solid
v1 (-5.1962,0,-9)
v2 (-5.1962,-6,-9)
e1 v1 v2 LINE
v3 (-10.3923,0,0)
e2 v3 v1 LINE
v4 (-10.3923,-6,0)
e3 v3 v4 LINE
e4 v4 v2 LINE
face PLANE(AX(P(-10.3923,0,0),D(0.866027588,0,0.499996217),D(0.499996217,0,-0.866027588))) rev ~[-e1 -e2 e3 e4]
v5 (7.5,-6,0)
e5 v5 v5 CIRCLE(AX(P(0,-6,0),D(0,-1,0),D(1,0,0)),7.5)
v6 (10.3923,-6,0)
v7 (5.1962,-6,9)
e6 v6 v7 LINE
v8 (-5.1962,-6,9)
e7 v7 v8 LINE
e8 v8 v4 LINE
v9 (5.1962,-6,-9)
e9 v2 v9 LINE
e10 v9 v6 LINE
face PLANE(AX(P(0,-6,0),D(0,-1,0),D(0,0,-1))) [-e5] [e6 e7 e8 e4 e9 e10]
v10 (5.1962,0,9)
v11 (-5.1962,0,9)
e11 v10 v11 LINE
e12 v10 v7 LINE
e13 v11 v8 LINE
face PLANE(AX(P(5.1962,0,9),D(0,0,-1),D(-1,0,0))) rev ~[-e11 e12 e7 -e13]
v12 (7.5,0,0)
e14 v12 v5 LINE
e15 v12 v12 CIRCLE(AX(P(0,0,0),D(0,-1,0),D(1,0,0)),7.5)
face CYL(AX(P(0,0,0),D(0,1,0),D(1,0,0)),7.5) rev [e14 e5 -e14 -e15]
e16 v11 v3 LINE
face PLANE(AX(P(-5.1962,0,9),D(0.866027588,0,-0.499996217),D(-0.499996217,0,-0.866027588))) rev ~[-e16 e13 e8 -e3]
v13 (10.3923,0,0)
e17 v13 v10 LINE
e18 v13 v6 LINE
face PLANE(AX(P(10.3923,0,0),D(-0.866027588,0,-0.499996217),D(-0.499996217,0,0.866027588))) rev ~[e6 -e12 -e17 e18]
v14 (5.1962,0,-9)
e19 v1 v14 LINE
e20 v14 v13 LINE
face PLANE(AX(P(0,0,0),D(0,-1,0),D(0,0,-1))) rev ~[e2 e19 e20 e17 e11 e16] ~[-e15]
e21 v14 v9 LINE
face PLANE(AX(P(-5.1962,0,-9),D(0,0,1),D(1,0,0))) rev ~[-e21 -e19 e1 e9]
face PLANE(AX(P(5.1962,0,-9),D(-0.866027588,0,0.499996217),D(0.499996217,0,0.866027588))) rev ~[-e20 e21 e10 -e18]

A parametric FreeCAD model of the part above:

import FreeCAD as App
import Part
import Sketcher
from FreeCAD import Vector
Q = App.Units.Quantity

doc = App.newDocument("Part")
params = doc.addObject("Spreadsheet::Sheet", "Params")
for row, (alias, value) in enumerate([
    ("sketch1_diameter", "15 mm"),
    ("pad1_length", "6 mm"),
], start=1):
    params.set(f"A{row}", alias)
    params.set(f"B{row}", "=" + value)
    params.setAlias(f"B{row}", alias)

body = doc.addObject("PartDesign::Body", "Body")

# Sketch on XZ plane
sketch1 = doc.addObject("Sketcher::SketchObject", "Sketch")
body.addObject(sketch1)
sketch1.AttachmentSupport = (doc.XZ_Plane, [""])
sketch1.MapMode = "FlatFace"
sketch1.addGeometry(Part.LineSegment(Vector(5, 9, 0), Vector(-5, 9, 0)), False)
sketch1.addGeometry(Part.LineSegment(Vector(-5, 9, 0), Vector(-10, 0, 0)), False)
sketch1.addGeometry(Part.LineSegment(Vector(-10, 0, 0), Vector(-5, -9, 0)), False)
sketch1.addGeometry(Part.LineSegment(Vector(-5, -9, 0), Vector(5, -9, 0)), False)
sketch1.addGeometry(Part.LineSegment(Vector(5, -9, 0), Vector(10, 0, 0)), False)
sketch1.addGeometry(Part.LineSegment(Vector(10, 0, 0), Vector(5, 9, 0)), False)
sketch1.addGeometry(Part.Circle(Vector(0, 0, 0), Vector(0, 0, 1), 8), False)
sketch1.addConstraint(Sketcher.Constraint("Coincident", 0, 2, 1, 1))
sketch1.addConstraint(Sketcher.Constraint("Coincident", 1, 2, 2, 1))
sketch1.addConstraint(Sketcher.Constraint("Coincident", 2, 2, 3, 1))
sketch1.addConstraint(Sketcher.Constraint("Coincident", 3, 2, 4, 1))
sketch1.addConstraint(Sketcher.Constraint("Coincident", 4, 2, 5, 1))
sketch1.addConstraint(Sketcher.Constraint("Coincident", 5, 2, 0, 1))
sketch1.addConstraint(Sketcher.Constraint("Horizontal", 0))
sketch1.addConstraint(Sketcher.Constraint("Horizontal", 3))
sketch1.addConstraint(Sketcher.Constraint("Coincident", 6, 3, -1, 1))
sketch1.addConstraint(Sketcher.Constraint("Symmetric", 0, 2, 3, 2, -1, 1))
sketch1.addConstraint(Sketcher.Constraint("Symmetric", 1, 2, 4, 2, -1, 1))
sketch1.addConstraint(Sketcher.Constraint("PointOnObject", 1, 2, -1))
sketch1.addConstraint(Sketcher.Constraint("Parallel", 2, 5))
sketch1.addConstraint(Sketcher.Constraint("Vertical", 0, 2, 2, 2))
sketch1.addConstraint(Sketcher.Constraint("Diameter", 6, Q("15 mm")))
sketch1.addConstraint(Sketcher.Constraint("Angle", 1, Q("-119.9997 deg")))
sketch1.addConstraint(Sketcher.Constraint("DistanceY", -1, 1, 0, 2, Q("9 mm")))
sketch1.addConstraint(Sketcher.Constraint("DistanceX", 0, 2, 0, 1, Q("10.3924 mm")))
sketch1.setExpression("Constraints[14]", "Params.sketch1_diameter")
pad1 = doc.addObject("PartDesign::Pad", "Pad")
body.addObject(pad1)
pad1.Profile = sketch1
pad1.setExpression("Length", "Params.pad1_length")

doc.recompute()
